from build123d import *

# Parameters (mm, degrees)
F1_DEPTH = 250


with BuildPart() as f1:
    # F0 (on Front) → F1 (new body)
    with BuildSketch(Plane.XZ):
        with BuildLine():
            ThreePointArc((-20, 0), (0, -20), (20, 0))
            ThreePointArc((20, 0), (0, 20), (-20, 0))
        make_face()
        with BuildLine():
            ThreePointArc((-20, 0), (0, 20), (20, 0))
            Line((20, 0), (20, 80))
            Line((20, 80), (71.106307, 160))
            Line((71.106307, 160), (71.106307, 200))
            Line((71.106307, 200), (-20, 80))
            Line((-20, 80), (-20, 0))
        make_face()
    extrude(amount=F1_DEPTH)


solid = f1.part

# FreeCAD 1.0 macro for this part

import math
import FreeCAD as App
import Part
import Sketcher
Q = App.Units.Quantity

doc = App.newDocument("Part")
body = doc.addObject("PartDesign::Body", "Body")

sketch1 = doc.addObject("Sketcher::SketchObject", "Sketch")
body.addObject(sketch1)
sketch1.AttachmentSupport = (doc.XZ_Plane, [""])
sketch1.MapMode = "FlatFace"
sketch1.addGeometry([
    Part.ArcOfCircle(Part.Circle(App.Vector(0, 0, 0), App.Vector(0, 0, 1), 20), math.radians(180), math.radians(360)),
    Part.LineSegment(App.Vector(20, 0, 0), App.Vector(20, 80, 0)),
    Part.LineSegment(App.Vector(20, 80, 0), App.Vector(71, 160, 0)),
    Part.LineSegment(App.Vector(71, 160, 0), App.Vector(71, 200, 0)),
    Part.LineSegment(App.Vector(71, 200, 0), App.Vector(-20, 80, 0)),
    Part.LineSegment(App.Vector(-20, 80, 0), App.Vector(-20, 0, 0)),
], False)
sketch1.addConstraint([
    Sketcher.Constraint("Tangent", 0, 2, 1, 1),
    Sketcher.Constraint("Coincident", 1, 2, 2, 1),
    Sketcher.Constraint("Coincident", 2, 2, 3, 1),
    Sketcher.Constraint("Coincident", 3, 2, 4, 1),
    Sketcher.Constraint("Coincident", 4, 2, 5, 1),
    Sketcher.Constraint("Tangent", 5, 2, 0, 1),
    Sketcher.Constraint("Vertical", 1),
    Sketcher.Constraint("Vertical", 3),
    Sketcher.Constraint("Vertical", 5),
    Sketcher.Constraint("Coincident", 0, 3, -1, 1),
    Sketcher.Constraint("Horizontal", 1, 2, 4, 2),
    Sketcher.Constraint("Radius", 0, Q("20 mm")),
    Sketcher.Constraint("DistanceY", 1, 1, 1, 2, Q("80 mm")),
    Sketcher.Constraint("DistanceY", 3, 1, 3, 2, Q("40 mm")),
    Sketcher.Constraint("DistanceY", -1, 1, 2, 2, Q("160 mm")),
    Sketcher.Constraint("Distance", 2, Q("94.930789 mm")),
])
pad1 = doc.addObject("PartDesign::Pad", "Pad")
body.addObject(pad1)
pad1.Profile = sketch1
pad1.Length = 250

doc.recompute()
